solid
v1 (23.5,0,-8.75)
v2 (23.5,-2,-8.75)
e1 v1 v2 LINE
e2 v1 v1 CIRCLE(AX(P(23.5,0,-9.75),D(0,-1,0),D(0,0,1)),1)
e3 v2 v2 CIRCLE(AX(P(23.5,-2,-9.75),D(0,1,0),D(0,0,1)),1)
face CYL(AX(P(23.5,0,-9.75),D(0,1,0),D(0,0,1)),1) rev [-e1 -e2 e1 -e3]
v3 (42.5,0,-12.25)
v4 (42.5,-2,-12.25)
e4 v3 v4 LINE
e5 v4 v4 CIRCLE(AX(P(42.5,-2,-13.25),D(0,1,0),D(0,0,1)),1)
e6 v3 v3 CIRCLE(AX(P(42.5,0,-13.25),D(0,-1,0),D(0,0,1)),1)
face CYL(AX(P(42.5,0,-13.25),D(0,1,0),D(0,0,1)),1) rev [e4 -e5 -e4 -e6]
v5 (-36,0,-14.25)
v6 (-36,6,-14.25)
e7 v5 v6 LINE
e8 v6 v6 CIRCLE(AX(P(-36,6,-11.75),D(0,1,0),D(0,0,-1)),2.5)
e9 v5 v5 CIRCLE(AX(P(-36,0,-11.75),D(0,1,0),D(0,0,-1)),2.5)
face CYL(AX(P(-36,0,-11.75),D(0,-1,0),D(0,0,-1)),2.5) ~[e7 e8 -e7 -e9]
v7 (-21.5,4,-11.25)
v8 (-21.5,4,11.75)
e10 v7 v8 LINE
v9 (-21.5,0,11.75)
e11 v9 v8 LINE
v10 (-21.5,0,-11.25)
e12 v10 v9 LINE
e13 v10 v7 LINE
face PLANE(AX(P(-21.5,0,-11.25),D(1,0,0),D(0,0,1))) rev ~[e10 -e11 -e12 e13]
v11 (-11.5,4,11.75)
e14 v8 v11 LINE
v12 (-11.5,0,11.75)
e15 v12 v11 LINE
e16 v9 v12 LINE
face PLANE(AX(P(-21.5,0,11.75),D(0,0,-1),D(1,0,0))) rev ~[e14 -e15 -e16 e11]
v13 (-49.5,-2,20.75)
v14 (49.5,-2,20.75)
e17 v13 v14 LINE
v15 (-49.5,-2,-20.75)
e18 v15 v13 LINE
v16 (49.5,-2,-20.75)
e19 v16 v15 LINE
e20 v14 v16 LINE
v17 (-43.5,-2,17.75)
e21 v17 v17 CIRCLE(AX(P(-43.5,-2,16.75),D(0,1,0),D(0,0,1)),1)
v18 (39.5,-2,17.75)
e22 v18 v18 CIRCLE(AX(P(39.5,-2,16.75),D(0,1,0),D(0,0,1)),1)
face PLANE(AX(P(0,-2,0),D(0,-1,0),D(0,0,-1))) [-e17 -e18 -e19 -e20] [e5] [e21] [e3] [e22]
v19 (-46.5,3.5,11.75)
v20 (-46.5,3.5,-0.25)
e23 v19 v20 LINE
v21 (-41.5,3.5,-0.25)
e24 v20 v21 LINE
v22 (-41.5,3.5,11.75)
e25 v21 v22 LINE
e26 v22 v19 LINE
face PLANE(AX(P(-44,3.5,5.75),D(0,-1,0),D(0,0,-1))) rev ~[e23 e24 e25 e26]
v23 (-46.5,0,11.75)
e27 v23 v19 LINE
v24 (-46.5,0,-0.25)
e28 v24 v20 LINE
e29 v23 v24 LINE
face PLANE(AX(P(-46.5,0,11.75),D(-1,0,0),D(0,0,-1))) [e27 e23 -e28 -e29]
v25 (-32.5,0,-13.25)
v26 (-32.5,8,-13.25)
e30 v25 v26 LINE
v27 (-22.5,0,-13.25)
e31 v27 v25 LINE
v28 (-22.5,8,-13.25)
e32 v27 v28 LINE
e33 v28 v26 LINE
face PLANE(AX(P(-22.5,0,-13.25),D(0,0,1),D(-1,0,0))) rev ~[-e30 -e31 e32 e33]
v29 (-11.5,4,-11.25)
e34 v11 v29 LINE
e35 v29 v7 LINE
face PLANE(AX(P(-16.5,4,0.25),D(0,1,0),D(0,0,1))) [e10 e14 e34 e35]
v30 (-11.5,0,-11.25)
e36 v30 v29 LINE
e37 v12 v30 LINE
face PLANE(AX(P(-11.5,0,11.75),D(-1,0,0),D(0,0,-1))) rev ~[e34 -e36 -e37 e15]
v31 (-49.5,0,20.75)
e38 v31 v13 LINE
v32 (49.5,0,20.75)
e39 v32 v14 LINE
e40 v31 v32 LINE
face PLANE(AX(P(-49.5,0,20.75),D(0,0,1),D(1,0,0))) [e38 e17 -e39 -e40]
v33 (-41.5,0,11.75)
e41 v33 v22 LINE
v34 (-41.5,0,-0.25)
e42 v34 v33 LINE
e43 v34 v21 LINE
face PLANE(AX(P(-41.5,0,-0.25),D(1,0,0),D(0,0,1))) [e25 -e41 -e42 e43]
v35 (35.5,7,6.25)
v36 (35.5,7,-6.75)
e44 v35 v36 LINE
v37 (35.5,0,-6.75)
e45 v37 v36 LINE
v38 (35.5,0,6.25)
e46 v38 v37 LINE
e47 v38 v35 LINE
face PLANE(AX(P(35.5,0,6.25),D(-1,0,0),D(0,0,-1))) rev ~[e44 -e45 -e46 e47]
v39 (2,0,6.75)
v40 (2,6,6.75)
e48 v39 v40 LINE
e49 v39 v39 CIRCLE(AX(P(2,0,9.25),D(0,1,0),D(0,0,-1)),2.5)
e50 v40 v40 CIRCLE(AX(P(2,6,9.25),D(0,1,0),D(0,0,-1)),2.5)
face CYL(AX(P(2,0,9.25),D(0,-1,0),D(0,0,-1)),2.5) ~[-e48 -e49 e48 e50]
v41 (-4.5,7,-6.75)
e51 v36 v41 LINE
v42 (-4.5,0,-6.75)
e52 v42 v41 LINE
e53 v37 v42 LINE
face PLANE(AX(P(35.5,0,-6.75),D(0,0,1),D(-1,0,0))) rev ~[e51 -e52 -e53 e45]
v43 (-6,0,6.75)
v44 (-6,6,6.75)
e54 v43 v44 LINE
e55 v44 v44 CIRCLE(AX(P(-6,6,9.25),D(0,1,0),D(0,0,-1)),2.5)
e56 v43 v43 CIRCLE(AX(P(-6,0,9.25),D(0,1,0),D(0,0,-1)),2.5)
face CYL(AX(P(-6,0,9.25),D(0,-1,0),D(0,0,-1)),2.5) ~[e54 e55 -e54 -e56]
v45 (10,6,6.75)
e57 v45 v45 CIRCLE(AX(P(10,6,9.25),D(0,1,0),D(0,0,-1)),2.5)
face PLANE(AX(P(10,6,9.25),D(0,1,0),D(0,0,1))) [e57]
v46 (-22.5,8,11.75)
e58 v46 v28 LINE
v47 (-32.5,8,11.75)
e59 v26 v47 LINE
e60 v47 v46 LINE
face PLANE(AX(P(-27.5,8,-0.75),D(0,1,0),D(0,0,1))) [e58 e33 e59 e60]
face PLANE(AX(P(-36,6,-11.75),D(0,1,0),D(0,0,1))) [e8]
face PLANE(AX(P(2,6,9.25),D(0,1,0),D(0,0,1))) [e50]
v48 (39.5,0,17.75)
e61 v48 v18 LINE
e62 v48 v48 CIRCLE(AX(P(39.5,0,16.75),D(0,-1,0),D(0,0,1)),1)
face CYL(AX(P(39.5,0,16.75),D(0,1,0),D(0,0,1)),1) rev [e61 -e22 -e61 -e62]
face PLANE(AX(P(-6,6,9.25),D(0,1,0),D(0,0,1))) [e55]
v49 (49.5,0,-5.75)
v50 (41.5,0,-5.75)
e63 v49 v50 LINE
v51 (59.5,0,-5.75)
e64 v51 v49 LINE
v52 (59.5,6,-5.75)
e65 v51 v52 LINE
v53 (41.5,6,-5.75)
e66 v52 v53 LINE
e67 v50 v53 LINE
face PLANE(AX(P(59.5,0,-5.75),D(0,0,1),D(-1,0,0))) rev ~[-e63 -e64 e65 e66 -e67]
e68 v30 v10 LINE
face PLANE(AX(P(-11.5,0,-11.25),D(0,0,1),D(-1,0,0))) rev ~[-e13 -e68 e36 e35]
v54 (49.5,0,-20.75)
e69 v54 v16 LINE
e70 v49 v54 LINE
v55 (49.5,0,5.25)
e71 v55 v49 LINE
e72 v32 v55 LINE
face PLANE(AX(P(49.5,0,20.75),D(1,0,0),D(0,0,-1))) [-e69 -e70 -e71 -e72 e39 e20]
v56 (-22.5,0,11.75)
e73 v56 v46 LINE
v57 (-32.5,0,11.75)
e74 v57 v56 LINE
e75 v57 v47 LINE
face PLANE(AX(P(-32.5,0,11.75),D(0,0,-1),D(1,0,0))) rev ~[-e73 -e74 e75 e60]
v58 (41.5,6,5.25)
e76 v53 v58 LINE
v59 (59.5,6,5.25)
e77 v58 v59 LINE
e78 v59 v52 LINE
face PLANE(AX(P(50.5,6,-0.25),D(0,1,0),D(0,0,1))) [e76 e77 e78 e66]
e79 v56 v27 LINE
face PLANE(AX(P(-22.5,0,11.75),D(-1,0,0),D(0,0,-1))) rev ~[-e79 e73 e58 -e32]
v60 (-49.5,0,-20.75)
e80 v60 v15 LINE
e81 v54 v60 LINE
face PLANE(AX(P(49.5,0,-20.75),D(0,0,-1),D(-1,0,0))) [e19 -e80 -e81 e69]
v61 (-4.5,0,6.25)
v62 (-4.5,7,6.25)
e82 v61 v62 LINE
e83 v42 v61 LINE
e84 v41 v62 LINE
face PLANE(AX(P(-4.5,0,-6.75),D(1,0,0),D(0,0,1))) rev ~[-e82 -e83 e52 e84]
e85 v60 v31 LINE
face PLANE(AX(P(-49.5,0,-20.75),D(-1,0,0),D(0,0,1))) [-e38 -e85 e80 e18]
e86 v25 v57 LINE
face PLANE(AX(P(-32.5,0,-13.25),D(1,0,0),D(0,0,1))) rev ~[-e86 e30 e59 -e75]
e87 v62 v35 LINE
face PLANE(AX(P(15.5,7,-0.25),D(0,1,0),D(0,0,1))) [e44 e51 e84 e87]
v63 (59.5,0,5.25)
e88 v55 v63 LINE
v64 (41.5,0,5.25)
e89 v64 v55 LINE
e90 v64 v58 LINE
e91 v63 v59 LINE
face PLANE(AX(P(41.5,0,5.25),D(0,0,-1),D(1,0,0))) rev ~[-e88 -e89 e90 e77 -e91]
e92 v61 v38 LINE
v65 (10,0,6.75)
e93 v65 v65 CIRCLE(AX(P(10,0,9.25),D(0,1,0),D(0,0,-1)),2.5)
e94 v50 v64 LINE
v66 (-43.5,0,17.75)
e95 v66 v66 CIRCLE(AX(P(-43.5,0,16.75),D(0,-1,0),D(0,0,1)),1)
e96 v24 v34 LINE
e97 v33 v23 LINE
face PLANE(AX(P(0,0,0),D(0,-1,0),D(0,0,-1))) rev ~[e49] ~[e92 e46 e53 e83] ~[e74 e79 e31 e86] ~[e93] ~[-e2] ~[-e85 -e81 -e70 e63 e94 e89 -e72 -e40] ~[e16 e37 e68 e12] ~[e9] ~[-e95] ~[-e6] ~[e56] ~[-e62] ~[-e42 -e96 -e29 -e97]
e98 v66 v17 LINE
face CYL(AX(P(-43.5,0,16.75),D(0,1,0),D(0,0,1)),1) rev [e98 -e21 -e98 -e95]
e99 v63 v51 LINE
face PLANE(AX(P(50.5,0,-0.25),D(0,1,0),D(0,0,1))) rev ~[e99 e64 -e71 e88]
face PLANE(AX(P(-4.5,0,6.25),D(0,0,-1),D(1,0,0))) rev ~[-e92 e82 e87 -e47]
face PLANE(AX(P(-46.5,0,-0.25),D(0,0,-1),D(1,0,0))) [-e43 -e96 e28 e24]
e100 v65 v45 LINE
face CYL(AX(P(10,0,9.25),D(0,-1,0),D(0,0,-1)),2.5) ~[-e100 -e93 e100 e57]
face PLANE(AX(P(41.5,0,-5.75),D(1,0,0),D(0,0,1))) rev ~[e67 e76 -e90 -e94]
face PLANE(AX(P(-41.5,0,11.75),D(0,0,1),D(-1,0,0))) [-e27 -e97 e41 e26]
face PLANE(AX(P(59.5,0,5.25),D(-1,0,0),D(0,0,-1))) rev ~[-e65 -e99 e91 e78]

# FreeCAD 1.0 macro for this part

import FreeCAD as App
import Part
import Sketcher


def add_polygon(sketch, points):
    """Adds a closed chain of lines whose ends are joined by coincident constraints."""
    first, n = sketch.GeometryCount, len(points)
    for a, b in zip(points, points[1:] + points[:1]):
        sketch.addGeometry(Part.LineSegment(App.Vector(*a, 0), App.Vector(*b, 0)), False)
    for i in range(n):
        sketch.addConstraint(Sketcher.Constraint("Coincident", first + i, 2, first + (i + 1) % n, 1))

doc = App.newDocument("Part")
params = doc.addObject("Spreadsheet::Sheet", "Params")
for row, (alias, value) in enumerate([
    ("sketch1_width", "95 mm"),
    ("sketch1_height", "37.5 mm"),
    ("pad1_length", "2 mm"),
    ("sketch2_diameter", "2 mm"),
    ("hole_diameter", "2 mm"),
    ("sketch3_diameter", "2 mm"),
    ("hole2_diameter", "2 mm"),
    ("sketch4_diameter", "2 mm"),
    ("hole3_diameter", "2 mm"),
    ("sketch5_diameter", "2 mm"),
    ("hole4_diameter", "2 mm"),
    ("sketch6_width", "95 mm"),
    ("sketch6_height", "41.5 mm"),
    ("sketch6_height2", "37.5 mm"),
    ("pad2_length", "2 mm"),
    ("sketch7_height", "25 mm"),
    ("pad3_length", "8 mm"),
    ("sketch8_height", "23 mm"),
    ("pad4_length", "4 mm"),
    ("sketch9_width", "40 mm"),
    ("sketch9_height", "13 mm"),
    ("pad5_length", "7 mm"),
    ("sketch10_width", "18 mm"),
    ("sketch10_height", "11 mm"),
    ("pad6_length", "6 mm"),
    ("sketch11_width", "5 mm"),
    ("sketch11_height", "12 mm"),
    ("pad7_length", "3.5 mm"),
    ("sketch12_diameter", "5 mm"),
    ("pad8_length", "6 mm"),
], start=1):
    params.set(f"A{row}", alias)
    params.set(f"B{row}", "=" + value)
    params.setAlias(f"B{row}", alias)

body = doc.addObject("PartDesign::Body", "Body")

sketch1 = body.newObject("Sketcher::SketchObject", "Sketch")
sketch1.AttachmentSupport = (doc.getObject("XZ_Plane"), [""])
sketch1.MapMode = "FlatFace"
add_polygon(sketch1, [(-48, 19), (-48, -19), (48, -19), (48, 19)])
sketch1.addConstraint([
    Sketcher.Constraint("Vertical", 0),
    Sketcher.Constraint("Horizontal", 1),
    Sketcher.Constraint("Vertical", 2),
    Sketcher.Constraint("Horizontal", 3),
    Sketcher.Constraint("Symmetric", 0, 2, 2, 2, -1, 1),
    Sketcher.Constraint("DistanceX", 1, 1, 1, 2, 95.0),
    Sketcher.Constraint("DistanceY", 0, 2, 0, 1, 37.5),
])
sketch1.setExpression("Constraints[9]", "Params.sketch1_width")
sketch1.setExpression("Constraints[10]", "Params.sketch1_height")
pad1 = body.newObject("PartDesign::Pad", "Pad")
pad1.Profile = sketch1
pad1.setExpression("Length", "Params.pad1_length")

sketch2 = body.newObject("Sketcher::SketchObject", "Sketch001")
sketch2.AttachmentSupport = (doc.getObject("XZ_Plane"), [""])
sketch2.MapMode = "FlatFace"
sketch2.addGeometry(Part.Circle(App.Vector(-43.5, 16.8, 0), App.Vector(0, 0, 1), 1), False)
sketch2.addConstraint([
    Sketcher.Constraint("Diameter", 0, 2.0),
    Sketcher.Constraint("DistanceX", 0, 3, -1, 1, 43.5),
    Sketcher.Constraint("DistanceY", -1, 1, 0, 3, 16.75),
])
sketch2.setExpression("Constraints[0]", "Params.sketch2_diameter")
doc.recompute()
hole = body.newObject("PartDesign::Hole", "Hole")
hole.Profile = sketch2
hole.ThreadType = "None"
hole.setExpression("Diameter", "Params.hole_diameter")
hole.DepthType = "ThroughAll"
hole.Reversed = True

sketch3 = body.newObject("Sketcher::SketchObject", "Sketch002")
sketch3.AttachmentSupport = (doc.getObject("XZ_Plane"), [""])
sketch3.MapMode = "FlatFace"
sketch3.addGeometry(Part.Circle(App.Vector(42.5, -13.2, 0), App.Vector(0, 0, 1), 1), False)
sketch3.addConstraint([
    Sketcher.Constraint("Diameter", 0, 2.0),
    Sketcher.Constraint("DistanceX", -1, 1, 0, 3, 42.5),
    Sketcher.Constraint("DistanceY", 0, 3, -1, 1, 13.25),
])
sketch3.setExpression("Constraints[0]", "Params.sketch3_diameter")
doc.recompute()
hole2 = body.newObject("PartDesign::Hole", "Hole001")
hole2.Profile = sketch3
hole2.ThreadType = "None"
hole2.setExpression("Diameter", "Params.hole2_diameter")
hole2.DepthType = "ThroughAll"
hole2.Reversed = True

sketch4 = body.newObject("Sketcher::SketchObject", "Sketch003")
sketch4.AttachmentSupport = (doc.getObject("XZ_Plane"), [""])
sketch4.MapMode = "FlatFace"
sketch4.addGeometry(Part.Circle(App.Vector(23.5, -9.8, 0), App.Vector(0, 0, 1), 1), False)
sketch4.addConstraint([
    Sketcher.Constraint("Diameter", 0, 2.0),
    Sketcher.Constraint("DistanceX", -1, 1, 0, 3, 23.5),
    Sketcher.Constraint("DistanceY", 0, 3, -1, 1, 9.75),
])
sketch4.setExpression("Constraints[0]", "Params.sketch4_diameter")
doc.recompute()
hole3 = body.newObject("PartDesign::Hole", "Hole002")
hole3.Profile = sketch4
hole3.ThreadType = "None"
hole3.setExpression("Diameter", "Params.hole3_diameter")
hole3.DepthType = "ThroughAll"
hole3.Reversed = True

sketch5 = body.newObject("Sketcher::SketchObject", "Sketch004")
sketch5.AttachmentSupport = (doc.getObject("XZ_Plane"), [""])
sketch5.MapMode = "FlatFace"
sketch5.addGeometry(Part.Circle(App.Vector(39.5, 16.8, 0), App.Vector(0, 0, 1), 1), False)
sketch5.addConstraint([
    Sketcher.Constraint("Diameter", 0, 2.0),
    Sketcher.Constraint("DistanceX", -1, 1, 0, 3, 39.5),
    Sketcher.Constraint("DistanceY", -1, 1, 0, 3, 16.75),
])
sketch5.setExpression("Constraints[0]", "Params.sketch5_diameter")
doc.recompute()
hole4 = body.newObject("PartDesign::Hole", "Hole003")
hole4.Profile = sketch5
hole4.ThreadType = "None"
hole4.setExpression("Diameter", "Params.hole4_diameter")
hole4.DepthType = "ThroughAll"
hole4.Reversed = True

sketch6 = body.newObject("Sketcher::SketchObject", "Sketch005")
sketch6.AttachmentSupport = (doc.getObject("XZ_Plane"), [""])
sketch6.MapMode = "FlatFace"
add_polygon(sketch6, [(-50, -21), (-50, 21), (50, 21), (50, -21)])
add_polygon(sketch6, [(-48, 19), (-48, -19), (48, -19), (48, 19)])
sketch6.addConstraint([
    Sketcher.Constraint("Vertical", 0),
    Sketcher.Constraint("Horizontal", 1),
    Sketcher.Constraint("Vertical", 2),
    Sketcher.Constraint("Horizontal", 3),
    Sketcher.Constraint("Vertical", 4),
    Sketcher.Constraint("Horizontal", 5),
    Sketcher.Constraint("Vertical", 6),
    Sketcher.Constraint("Horizontal", 7),
    Sketcher.Constraint("Symmetric", 0, 2, 2, 2, -1, 1),
    Sketcher.Constraint("Symmetric", 4, 2, 6, 2, -1, 1),
    Sketcher.Constraint("DistanceX", 0, 2, -1, 1, 49.5),
    Sketcher.Constraint("DistanceX", 5, 1, 5, 2, 95.0),
    Sketcher.Constraint("DistanceY", 0, 1, 0, 2, 41.5),
    Sketcher.Constraint("DistanceY", 4, 2, 4, 1, 37.5),
])
sketch6.setExpression("Constraints[19]", "Params.sketch6_width")
sketch6.setExpression("Constraints[20]", "Params.sketch6_height")
sketch6.setExpression("Constraints[21]", "Params.sketch6_height2")
pad2 = body.newObject("PartDesign::Pad", "Pad001")
pad2.Profile = sketch6
pad2.setExpression("Length", "Params.pad2_length")

sketch7 = body.newObject("Sketcher::SketchObject", "Sketch006")
sketch7.AttachmentSupport = (doc.getObject("XZ_Plane"), [""])
sketch7.MapMode = "FlatFace"
add_polygon(sketch7, [(-32, -13), (-32, 12), (-22, 12), (-22, -13)])
sketch7.addConstraint([
    Sketcher.Constraint("Vertical", 0),
    Sketcher.Constraint("Horizontal", 1),
    Sketcher.Constraint("Vertical", 2),
    Sketcher.Constraint("Horizontal", 3),
    Sketcher.Constraint("DistanceX", 0, 2, -1, 1, 32.5),
    Sketcher.Constraint("DistanceX", 1, 2, -1, 1, 22.5),
    Sketcher.Constraint("DistanceY", 0, 1, 0, 2, 25.0),
    Sketcher.Constraint("DistanceY", -1, 1, 0, 2, 11.75),
])
sketch7.setExpression("Constraints[10]", "Params.sketch7_height")
pad3 = body.newObject("PartDesign::Pad", "Pad002")
pad3.Profile = sketch7
pad3.setExpression("Length", "Params.pad3_length")
pad3.Reversed = True

sketch8 = body.newObject("Sketcher::SketchObject", "Sketch007")
sketch8.AttachmentSupport = (doc.getObject("XZ_Plane"), [""])
sketch8.MapMode = "FlatFace"
add_polygon(sketch8, [(-22, -11), (-22, 12), (-12, 12), (-12, -11)])
sketch8.addConstraint([
    Sketcher.Constraint("Vertical", 0),
    Sketcher.Constraint("Horizontal", 1),
    Sketcher.Constraint("Vertical", 2),
    Sketcher.Constraint("Horizontal", 3),
    Sketcher.Constraint("DistanceX", 0, 2, -1, 1, 21.5),
    Sketcher.Constraint("DistanceX", 1, 2, -1, 1, 11.5),
    Sketcher.Constraint("DistanceY", 0, 1, 0, 2, 23.0),
    Sketcher.Constraint("DistanceY", -1, 1, 0, 2, 11.75),
])
sketch8.setExpression("Constraints[10]", "Params.sketch8_height")
pad4 = body.newObject("PartDesign::Pad", "Pad003")
pad4.Profile = sketch8
pad4.setExpression("Length", "Params.pad4_length")
pad4.Reversed = True

sketch9 = body.newObject("Sketcher::SketchObject", "Sketch008")
sketch9.AttachmentSupport = (doc.getObject("XZ_Plane"), [""])
sketch9.MapMode = "FlatFace"
add_polygon(sketch9, [(-4, -7), (-4, 6), (36, 6), (36, -7)])
sketch9.addConstraint([
    Sketcher.Constraint("Vertical", 0),
    Sketcher.Constraint("Horizontal", 1),
    Sketcher.Constraint("Vertical", 2),
    Sketcher.Constraint("Horizontal", 3),
    Sketcher.Constraint("DistanceX", -1, 1, 1, 2, 35.5),
    Sketcher.Constraint("DistanceX", 1, 1, 1, 2, 40.0),
    Sketcher.Constraint("DistanceY", 0, 1, 0, 2, 13.0),
    Sketcher.Constraint("DistanceY", -1, 1, 0, 2, 6.25),
])
sketch9.setExpression("Constraints[9]", "Params.sketch9_width")
sketch9.setExpression("Constraints[10]", "Params.sketch9_height")
pad5 = body.newObject("PartDesign::Pad", "Pad004")
pad5.Profile = sketch9
pad5.setExpression("Length", "Params.pad5_length")
pad5.Reversed = True

sketch10 = body.newObject("Sketcher::SketchObject", "Sketch009")
sketch10.AttachmentSupport = (doc.getObject("XZ_Plane"), [""])
sketch10.MapMode = "FlatFace"
add_polygon(sketch10, [(42, -6), (42, 5), (60, 5), (60, -6)])
sketch10.addConstraint([
    Sketcher.Constraint("Vertical", 0),
    Sketcher.Constraint("Horizontal", 1),
    Sketcher.Constraint("Vertical", 2),
    Sketcher.Constraint("Horizontal", 3),
    Sketcher.Constraint("DistanceX", -1, 1, 1, 2, 59.5),
    Sketcher.Constraint("DistanceX", 1, 1, 1, 2, 18.0),
    Sketcher.Constraint("DistanceY", 0, 1, 0, 2, 11.0),
    Sketcher.Constraint("DistanceY", -1, 1, 0, 2, 5.25),
])
sketch10.setExpression("Constraints[9]", "Params.sketch10_width")
sketch10.setExpression("Constraints[10]", "Params.sketch10_height")
pad6 = body.newObject("PartDesign::Pad", "Pad005")
pad6.Profile = sketch10
pad6.setExpression("Length", "Params.pad6_length")
pad6.Reversed = True

sketch11 = body.newObject("Sketcher::SketchObject", "Sketch010")
sketch11.AttachmentSupport = (doc.getObject("XZ_Plane"), [""])
sketch11.MapMode = "FlatFace"
add_polygon(sketch11, [(-46, 0), (-46, 12), (-42, 12), (-42, 0)])
sketch11.addConstraint([
    Sketcher.Constraint("Vertical", 0),
    Sketcher.Constraint("Horizontal", 1),
    Sketcher.Constraint("Vertical", 2),
    Sketcher.Constraint("Horizontal", 3),
    Sketcher.Constraint("DistanceX", 1, 1, 1, 2, 5.0),
    Sketcher.Constraint("DistanceY", 0, 1, 0, 2, 12.0),
    Sketcher.Constraint("DistanceY", -1, 1, 0, 2, 11.75),
    Sketcher.Constraint("DistanceX", 0, 2, -1, 1, 46.5),
])
sketch11.setExpression("Constraints[8]", "Params.sketch11_width")
sketch11.setExpression("Constraints[9]", "Params.sketch11_height")
pad7 = body.newObject("PartDesign::Pad", "Pad006")
pad7.Profile = sketch11
pad7.setExpression("Length", "Params.pad7_length")
pad7.Reversed = True

sketch12 = body.newObject("Sketcher::SketchObject", "Sketch011")
sketch12.AttachmentSupport = (doc.getObject("XZ_Plane"), [""])
sketch12.MapMode = "FlatFace"
sketch12.addGeometry([
    Part.Circle(App.Vector(-6, 9.2, 0), App.Vector(0, 0, 1), 2.5),
    Part.Circle(App.Vector(2, 9.2, 0), App.Vector(0, 0, 1), 2.5),
    Part.Circle(App.Vector(10, 9.2, 0), App.Vector(0, 0, 1), 2.5),
    Part.Circle(App.Vector(-36, -11.8, 0), App.Vector(0, 0, 1), 2.5),
], False)
sketch12.addConstraint([
    Sketcher.Constraint("Equal", 0, 1),
    Sketcher.Constraint("Equal", 1, 2),
    Sketcher.Constraint("Equal", 2, 3),
    Sketcher.Constraint("Horizontal", 0, 3, 1, 3),
    Sketcher.Constraint("Horizontal", 1, 3, 2, 3),
    Sketcher.Constraint("Diameter", 0, 5.0),
    Sketcher.Constraint("DistanceY", -1, 1, 0, 3, 9.25),
    Sketcher.Constraint("DistanceX", 0, 3, -1, 1, 6.0),
    Sketcher.Constraint("DistanceX", -1, 1, 1, 3, 2.0),
    Sketcher.Constraint("DistanceX", -1, 1, 2, 3, 10.0),
    Sketcher.Constraint("DistanceX", 3, 3, -1, 1, 36.0),
    Sketcher.Constraint("DistanceY", 3, 3, 0, 3, 21.0),
])
sketch12.setExpression("Constraints[5]", "Params.sketch12_diameter")
pad8 = body.newObject("PartDesign::Pad", "Pad007")
pad8.Profile = sketch12
pad8.setExpression("Length", "Params.pad8_length")
pad8.Reversed = True

doc.recompute()
